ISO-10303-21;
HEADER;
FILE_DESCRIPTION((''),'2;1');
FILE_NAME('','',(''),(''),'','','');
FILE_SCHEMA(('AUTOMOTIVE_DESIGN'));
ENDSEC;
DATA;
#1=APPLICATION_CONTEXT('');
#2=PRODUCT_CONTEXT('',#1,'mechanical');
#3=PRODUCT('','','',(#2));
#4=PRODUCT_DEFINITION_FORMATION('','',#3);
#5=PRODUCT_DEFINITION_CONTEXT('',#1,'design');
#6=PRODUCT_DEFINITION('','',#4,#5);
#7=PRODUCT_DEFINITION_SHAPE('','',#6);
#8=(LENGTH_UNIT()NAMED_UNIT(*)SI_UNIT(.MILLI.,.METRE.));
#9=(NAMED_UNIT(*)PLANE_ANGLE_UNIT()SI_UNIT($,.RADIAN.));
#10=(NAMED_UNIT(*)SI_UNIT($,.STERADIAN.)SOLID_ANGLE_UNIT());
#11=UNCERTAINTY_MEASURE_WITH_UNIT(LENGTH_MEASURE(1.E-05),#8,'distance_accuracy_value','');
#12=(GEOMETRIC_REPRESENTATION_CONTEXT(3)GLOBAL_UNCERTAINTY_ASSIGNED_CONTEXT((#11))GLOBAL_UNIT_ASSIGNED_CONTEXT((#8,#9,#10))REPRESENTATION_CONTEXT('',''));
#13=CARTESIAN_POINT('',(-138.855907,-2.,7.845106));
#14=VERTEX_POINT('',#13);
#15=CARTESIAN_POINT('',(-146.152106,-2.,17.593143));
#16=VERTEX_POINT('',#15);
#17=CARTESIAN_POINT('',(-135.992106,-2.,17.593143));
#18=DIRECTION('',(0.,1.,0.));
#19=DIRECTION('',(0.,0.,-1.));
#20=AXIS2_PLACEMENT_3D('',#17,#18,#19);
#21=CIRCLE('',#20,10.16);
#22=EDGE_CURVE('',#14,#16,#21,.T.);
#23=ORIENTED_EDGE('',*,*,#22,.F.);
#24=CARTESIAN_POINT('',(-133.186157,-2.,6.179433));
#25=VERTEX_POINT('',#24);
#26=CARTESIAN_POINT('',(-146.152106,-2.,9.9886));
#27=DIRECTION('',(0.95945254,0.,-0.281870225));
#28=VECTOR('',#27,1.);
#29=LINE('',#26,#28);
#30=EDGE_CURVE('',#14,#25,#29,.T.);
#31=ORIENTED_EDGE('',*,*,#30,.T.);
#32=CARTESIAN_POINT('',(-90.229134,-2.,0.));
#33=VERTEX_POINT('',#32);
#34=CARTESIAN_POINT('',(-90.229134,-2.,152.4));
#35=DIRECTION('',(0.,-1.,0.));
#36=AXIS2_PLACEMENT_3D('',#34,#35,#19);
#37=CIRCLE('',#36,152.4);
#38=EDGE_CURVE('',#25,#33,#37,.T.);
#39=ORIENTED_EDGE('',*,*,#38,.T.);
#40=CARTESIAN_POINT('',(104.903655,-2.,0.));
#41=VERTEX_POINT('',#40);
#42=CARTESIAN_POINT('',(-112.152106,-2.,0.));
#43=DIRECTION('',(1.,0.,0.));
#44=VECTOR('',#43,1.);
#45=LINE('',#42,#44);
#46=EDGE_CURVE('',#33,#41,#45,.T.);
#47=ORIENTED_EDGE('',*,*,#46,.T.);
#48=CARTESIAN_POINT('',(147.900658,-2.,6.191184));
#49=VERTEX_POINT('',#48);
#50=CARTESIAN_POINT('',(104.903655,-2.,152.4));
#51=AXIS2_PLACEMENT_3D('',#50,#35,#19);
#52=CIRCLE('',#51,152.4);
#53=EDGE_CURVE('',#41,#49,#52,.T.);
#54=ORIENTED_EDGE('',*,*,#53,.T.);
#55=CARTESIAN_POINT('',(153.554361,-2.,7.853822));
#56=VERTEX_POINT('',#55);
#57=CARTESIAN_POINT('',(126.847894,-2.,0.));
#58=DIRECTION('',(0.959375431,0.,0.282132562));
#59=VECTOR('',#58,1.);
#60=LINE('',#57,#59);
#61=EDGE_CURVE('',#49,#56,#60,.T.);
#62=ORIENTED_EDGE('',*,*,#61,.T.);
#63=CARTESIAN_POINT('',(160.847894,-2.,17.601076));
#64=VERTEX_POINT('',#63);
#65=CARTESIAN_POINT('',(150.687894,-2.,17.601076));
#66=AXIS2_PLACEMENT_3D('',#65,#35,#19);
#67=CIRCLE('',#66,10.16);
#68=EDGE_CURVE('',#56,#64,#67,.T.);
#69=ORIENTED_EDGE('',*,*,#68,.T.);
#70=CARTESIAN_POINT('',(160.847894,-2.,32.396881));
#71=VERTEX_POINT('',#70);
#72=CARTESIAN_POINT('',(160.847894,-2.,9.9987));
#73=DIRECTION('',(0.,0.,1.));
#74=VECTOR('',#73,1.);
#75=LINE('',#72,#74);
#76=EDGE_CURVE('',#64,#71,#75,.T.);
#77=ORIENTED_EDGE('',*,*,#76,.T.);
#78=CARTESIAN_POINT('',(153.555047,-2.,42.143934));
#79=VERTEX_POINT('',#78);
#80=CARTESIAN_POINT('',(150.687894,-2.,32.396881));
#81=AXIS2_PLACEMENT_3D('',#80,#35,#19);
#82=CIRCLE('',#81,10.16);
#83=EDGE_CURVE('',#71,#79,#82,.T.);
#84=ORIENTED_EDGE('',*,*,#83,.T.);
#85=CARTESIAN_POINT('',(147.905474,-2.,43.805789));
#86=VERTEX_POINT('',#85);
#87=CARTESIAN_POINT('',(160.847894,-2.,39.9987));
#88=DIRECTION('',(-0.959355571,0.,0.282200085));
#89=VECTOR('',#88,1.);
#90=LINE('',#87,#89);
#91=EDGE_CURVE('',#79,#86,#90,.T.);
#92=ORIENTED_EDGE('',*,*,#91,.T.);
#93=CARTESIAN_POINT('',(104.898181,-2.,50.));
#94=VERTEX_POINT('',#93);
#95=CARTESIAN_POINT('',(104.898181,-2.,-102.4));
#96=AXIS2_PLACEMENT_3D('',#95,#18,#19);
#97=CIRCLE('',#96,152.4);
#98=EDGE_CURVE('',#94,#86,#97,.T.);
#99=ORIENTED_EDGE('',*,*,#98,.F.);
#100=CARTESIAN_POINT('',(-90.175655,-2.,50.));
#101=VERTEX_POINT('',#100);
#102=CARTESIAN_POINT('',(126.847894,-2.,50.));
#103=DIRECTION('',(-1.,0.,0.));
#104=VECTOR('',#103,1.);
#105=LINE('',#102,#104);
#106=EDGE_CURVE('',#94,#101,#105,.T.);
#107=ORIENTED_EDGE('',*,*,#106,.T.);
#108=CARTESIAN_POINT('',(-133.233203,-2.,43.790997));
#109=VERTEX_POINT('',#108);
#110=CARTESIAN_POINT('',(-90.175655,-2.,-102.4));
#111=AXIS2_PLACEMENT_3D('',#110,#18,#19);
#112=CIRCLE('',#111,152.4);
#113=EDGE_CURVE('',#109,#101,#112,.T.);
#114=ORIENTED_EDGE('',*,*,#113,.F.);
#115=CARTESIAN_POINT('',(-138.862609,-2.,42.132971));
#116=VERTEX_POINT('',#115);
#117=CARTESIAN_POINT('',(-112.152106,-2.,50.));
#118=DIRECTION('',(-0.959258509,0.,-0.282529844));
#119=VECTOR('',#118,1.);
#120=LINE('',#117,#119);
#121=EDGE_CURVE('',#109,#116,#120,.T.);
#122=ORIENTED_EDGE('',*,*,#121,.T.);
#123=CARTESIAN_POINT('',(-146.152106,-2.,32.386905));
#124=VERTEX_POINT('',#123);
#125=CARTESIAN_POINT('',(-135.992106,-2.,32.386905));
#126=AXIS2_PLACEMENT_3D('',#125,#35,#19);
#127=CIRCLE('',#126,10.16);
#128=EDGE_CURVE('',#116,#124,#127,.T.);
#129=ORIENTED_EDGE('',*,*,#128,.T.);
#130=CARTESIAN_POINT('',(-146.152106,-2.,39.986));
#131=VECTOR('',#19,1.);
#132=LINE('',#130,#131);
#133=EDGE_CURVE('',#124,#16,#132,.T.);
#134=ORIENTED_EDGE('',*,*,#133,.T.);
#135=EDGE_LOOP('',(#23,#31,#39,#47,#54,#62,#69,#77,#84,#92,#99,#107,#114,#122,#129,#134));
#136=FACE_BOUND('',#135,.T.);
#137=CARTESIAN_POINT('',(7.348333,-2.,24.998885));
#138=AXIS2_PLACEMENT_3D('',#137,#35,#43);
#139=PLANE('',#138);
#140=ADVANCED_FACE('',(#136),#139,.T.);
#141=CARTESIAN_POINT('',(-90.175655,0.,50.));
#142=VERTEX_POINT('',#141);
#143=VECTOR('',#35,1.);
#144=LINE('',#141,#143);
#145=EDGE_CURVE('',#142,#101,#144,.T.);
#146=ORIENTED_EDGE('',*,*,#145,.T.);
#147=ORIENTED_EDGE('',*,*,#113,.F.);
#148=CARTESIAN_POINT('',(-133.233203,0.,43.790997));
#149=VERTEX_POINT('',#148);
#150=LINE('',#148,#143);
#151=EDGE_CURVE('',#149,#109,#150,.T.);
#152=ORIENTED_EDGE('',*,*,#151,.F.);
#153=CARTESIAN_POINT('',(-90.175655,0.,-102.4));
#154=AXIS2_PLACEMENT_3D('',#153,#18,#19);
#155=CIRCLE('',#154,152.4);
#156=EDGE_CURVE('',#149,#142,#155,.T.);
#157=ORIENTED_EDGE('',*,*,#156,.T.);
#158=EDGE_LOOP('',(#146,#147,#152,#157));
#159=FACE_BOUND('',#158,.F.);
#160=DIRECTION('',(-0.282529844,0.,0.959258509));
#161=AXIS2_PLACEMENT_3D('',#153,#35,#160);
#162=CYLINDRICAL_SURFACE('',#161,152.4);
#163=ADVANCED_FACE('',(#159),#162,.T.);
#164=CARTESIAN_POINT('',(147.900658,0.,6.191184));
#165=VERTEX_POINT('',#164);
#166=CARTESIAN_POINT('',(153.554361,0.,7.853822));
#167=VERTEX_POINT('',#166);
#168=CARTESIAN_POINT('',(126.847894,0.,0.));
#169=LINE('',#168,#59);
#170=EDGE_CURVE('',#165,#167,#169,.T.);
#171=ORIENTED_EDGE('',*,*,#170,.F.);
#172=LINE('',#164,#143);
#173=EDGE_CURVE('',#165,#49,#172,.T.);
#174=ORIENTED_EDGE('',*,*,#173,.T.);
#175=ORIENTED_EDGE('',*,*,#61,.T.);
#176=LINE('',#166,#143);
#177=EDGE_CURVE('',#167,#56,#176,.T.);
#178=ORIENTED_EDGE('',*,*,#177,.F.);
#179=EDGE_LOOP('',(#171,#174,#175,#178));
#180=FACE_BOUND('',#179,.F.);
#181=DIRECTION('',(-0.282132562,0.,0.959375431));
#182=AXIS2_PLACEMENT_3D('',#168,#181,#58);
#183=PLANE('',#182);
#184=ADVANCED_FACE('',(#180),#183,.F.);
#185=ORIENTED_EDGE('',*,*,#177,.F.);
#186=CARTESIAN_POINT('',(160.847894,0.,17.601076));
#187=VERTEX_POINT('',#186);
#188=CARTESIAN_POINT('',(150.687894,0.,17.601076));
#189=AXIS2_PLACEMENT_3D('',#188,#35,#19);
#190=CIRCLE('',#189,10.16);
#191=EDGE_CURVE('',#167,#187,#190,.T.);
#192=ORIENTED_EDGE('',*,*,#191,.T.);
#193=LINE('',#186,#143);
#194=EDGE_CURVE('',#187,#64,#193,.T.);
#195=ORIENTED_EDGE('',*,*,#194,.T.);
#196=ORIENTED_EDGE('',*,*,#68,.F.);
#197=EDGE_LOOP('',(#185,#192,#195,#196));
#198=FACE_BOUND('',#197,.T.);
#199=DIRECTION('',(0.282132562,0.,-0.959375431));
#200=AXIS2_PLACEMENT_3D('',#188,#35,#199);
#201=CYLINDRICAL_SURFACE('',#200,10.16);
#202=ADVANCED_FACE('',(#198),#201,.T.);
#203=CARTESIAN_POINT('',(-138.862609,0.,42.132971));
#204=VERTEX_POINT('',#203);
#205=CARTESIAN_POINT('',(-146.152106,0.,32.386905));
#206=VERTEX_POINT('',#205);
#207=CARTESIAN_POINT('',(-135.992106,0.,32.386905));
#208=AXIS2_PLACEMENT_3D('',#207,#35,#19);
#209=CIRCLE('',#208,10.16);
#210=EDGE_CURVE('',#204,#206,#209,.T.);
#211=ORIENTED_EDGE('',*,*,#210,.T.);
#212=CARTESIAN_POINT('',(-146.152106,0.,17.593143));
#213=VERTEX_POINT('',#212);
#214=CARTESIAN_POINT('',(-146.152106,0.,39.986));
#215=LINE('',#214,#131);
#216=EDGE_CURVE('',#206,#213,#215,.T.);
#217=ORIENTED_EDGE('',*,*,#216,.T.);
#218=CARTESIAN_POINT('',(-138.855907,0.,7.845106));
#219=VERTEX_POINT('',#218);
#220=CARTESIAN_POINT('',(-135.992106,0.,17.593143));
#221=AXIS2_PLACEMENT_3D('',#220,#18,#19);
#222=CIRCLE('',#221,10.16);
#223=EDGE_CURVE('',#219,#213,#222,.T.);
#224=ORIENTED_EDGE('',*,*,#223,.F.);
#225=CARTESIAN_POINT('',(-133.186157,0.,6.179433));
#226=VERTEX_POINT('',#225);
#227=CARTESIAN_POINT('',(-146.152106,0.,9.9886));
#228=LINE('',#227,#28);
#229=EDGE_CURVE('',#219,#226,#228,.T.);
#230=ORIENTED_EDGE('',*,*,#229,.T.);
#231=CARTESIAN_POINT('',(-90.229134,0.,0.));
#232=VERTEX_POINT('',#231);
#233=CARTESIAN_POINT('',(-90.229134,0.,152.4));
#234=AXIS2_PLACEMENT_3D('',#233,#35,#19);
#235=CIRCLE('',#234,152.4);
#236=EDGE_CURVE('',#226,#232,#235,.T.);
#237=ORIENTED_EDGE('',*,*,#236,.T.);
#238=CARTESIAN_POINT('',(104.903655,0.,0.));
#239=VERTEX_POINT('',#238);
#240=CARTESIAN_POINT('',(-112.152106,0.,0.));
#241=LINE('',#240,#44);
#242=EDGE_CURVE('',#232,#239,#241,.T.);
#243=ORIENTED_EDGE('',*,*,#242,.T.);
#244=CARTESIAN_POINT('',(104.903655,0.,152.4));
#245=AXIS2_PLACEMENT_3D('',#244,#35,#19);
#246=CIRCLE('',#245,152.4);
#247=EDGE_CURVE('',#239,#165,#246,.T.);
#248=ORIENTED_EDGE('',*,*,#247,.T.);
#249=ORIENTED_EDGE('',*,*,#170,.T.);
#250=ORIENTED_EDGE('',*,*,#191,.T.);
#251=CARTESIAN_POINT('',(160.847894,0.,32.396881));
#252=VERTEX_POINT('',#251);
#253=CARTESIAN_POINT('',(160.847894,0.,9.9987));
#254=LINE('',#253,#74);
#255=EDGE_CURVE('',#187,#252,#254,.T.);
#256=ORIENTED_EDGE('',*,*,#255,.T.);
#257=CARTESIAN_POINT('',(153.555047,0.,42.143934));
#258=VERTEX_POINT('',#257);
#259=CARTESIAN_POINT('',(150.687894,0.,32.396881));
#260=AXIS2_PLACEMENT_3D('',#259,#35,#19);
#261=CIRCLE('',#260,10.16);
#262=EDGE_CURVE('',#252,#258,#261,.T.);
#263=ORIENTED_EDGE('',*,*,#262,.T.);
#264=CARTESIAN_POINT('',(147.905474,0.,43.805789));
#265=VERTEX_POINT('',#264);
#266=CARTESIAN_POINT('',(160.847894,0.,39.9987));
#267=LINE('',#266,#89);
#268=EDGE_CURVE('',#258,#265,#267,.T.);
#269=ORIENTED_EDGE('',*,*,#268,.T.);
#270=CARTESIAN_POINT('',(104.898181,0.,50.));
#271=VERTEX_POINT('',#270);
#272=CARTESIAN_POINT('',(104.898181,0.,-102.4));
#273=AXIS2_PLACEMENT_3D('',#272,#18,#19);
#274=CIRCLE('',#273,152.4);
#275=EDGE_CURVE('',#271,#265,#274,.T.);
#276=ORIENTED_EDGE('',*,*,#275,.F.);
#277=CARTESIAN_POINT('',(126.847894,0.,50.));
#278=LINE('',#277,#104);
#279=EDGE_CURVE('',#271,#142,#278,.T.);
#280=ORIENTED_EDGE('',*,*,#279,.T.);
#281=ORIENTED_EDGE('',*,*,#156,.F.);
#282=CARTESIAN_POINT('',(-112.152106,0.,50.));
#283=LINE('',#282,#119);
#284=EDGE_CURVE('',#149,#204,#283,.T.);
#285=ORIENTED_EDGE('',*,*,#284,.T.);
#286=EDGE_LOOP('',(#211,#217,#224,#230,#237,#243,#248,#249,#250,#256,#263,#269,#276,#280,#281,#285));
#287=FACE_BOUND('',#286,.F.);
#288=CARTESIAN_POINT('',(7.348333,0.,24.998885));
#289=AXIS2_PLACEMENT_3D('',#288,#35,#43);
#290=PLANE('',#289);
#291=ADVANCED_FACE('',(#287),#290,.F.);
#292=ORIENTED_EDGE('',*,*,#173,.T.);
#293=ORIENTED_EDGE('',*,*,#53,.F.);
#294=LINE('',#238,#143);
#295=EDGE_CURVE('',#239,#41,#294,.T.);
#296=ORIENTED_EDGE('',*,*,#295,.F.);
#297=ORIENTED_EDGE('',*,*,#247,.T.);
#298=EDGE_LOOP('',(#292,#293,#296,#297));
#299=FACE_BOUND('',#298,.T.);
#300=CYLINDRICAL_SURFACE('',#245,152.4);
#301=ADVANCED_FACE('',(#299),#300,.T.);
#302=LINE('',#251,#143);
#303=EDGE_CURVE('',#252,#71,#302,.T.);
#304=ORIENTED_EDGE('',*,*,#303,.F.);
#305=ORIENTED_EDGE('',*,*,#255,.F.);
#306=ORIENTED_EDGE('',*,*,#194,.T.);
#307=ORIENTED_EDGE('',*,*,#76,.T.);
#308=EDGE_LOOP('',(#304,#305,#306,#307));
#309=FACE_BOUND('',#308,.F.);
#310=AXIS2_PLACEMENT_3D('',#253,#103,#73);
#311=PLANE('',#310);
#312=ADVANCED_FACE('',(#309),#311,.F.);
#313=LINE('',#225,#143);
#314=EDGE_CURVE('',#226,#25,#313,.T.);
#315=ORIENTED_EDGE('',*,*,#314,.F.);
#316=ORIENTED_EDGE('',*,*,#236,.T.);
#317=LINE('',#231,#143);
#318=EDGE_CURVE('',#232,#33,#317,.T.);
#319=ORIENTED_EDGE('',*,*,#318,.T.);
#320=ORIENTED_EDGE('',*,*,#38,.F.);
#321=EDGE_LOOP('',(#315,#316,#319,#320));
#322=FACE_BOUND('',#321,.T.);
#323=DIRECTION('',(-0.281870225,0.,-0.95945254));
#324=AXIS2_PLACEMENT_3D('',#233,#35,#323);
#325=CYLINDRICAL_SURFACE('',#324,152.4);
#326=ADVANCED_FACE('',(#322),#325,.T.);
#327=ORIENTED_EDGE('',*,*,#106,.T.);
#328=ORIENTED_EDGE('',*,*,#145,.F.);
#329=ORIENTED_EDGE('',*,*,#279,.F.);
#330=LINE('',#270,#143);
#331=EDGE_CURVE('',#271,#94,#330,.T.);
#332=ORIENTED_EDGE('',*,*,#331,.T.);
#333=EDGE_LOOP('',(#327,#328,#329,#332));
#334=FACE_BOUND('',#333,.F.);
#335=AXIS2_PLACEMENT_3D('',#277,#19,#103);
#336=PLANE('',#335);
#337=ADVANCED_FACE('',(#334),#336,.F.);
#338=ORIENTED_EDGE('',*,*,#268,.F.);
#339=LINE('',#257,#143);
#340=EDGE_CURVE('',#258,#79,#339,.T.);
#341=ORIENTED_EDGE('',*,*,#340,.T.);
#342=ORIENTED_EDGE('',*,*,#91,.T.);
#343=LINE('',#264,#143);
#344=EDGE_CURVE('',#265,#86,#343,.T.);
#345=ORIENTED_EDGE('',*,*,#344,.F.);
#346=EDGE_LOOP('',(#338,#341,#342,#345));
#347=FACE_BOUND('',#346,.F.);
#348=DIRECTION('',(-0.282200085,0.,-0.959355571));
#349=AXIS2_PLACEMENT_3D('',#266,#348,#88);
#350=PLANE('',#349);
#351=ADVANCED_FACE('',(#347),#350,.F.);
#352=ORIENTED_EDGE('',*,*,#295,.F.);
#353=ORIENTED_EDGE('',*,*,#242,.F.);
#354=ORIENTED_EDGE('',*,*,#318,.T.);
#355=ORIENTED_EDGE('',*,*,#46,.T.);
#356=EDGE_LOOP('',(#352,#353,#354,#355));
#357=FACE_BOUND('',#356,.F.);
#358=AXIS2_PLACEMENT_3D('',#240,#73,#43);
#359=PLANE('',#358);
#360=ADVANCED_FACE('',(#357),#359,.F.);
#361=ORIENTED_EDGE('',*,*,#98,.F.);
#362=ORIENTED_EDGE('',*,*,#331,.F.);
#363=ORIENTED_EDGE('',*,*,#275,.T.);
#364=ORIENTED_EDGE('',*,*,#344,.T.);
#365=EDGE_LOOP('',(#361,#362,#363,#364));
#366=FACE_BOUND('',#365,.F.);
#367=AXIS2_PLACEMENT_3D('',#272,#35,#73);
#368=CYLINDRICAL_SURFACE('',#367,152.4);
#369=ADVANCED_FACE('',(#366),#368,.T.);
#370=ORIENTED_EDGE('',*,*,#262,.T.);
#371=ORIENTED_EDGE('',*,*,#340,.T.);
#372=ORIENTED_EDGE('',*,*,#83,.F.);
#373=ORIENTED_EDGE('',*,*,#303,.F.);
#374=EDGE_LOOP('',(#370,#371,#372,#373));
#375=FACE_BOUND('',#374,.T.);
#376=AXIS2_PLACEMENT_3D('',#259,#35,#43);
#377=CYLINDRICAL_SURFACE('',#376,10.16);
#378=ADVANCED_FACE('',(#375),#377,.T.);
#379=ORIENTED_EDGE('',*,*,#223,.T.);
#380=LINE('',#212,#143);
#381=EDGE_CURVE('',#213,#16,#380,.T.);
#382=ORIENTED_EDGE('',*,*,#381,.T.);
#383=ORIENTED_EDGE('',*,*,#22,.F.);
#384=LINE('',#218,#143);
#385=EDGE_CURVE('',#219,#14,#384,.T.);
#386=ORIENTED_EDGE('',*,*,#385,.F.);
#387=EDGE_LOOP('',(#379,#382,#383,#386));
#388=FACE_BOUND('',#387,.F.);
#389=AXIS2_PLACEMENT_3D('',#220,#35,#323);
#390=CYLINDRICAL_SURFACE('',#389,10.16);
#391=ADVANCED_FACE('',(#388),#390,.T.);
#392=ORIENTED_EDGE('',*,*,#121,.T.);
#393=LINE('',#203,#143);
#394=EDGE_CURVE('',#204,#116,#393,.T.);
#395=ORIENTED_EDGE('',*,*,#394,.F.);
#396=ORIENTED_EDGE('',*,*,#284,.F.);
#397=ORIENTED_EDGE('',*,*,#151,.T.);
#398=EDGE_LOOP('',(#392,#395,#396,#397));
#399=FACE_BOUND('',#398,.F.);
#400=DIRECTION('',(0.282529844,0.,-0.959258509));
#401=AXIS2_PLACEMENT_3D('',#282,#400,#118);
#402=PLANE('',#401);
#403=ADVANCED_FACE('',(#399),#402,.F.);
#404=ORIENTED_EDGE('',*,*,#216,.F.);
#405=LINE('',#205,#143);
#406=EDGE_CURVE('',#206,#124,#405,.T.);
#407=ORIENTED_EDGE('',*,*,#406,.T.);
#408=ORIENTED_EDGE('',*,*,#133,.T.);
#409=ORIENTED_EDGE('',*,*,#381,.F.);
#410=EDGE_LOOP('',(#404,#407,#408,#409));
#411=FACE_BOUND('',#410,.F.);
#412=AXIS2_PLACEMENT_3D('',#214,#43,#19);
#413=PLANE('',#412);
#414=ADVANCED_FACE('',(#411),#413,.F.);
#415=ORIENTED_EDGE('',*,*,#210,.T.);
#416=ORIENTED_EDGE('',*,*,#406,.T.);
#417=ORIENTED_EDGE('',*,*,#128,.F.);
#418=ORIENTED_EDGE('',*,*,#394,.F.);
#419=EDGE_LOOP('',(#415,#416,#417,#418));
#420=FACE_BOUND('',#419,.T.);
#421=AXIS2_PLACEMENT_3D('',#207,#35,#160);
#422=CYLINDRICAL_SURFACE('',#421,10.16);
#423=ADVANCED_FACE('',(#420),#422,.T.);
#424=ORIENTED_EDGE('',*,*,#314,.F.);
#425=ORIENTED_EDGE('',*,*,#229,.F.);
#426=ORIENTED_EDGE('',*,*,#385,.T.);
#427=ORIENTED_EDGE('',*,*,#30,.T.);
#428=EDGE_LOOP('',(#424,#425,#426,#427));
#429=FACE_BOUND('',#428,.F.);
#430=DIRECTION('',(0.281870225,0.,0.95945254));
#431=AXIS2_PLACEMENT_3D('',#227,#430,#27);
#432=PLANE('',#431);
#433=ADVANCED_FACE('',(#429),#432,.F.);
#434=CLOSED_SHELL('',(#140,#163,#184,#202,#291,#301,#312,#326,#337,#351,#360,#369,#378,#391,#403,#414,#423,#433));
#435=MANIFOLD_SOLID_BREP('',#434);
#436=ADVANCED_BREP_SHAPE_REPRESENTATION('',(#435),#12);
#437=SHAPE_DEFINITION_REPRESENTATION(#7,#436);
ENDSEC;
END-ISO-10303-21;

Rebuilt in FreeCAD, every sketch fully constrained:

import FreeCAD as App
import Part
import Sketcher
Q = App.Units.Quantity


def edges_at(feature, points):
    """Names of the edges that pass closest to the given points."""
    edges = feature.Shape.Edges
    near = lambda p: min(range(len(edges)), key=lambda i: edges[i].distToShape(Part.Vertex(*p))[0])
    return sorted({f"Edge{near(p) + 1}" for p in points})


def add_polygon(sketch, points):
    """Adds a closed chain of lines whose ends are joined by coincident constraints."""
    first, n = sketch.GeometryCount, len(points)
    for a, b in zip(points, points[1:] + points[:1]):
        sketch.addGeometry(Part.LineSegment(App.Vector(*a, 0), App.Vector(*b, 0)), False)
    for i in range(n):
        sketch.addConstraint(Sketcher.Constraint("Coincident", first + i, 2, first + (i + 1) % n, 1))

doc = App.newDocument("Part")
body = doc.addObject("PartDesign::Body", "Body")

# Sketch on XZ plane
sketch1 = body.newObject("Sketcher::SketchObject", "Sketch")
sketch1.AttachmentSupport = (doc.getObject("XZ_Plane"), [""])
sketch1.MapMode = "FlatFace"
add_polygon(sketch1, [(-146.152106, 9.9886), (-112.152106, 0), (126.847894, 0), (160.847894, 9.9987), (160.847894, 39.9987), (126.847894, 50), (-112.152106, 50), (-146.152106, 39.986)])  # lines 0-7
sketch1.addConstraint([
    Sketcher.Constraint("Horizontal", 1),
    Sketcher.Constraint("Vertical", 3),
    Sketcher.Constraint("Horizontal", 5),
    Sketcher.Constraint("Vertical", 7),
    Sketcher.Constraint("PointOnObject", 0, 2, -1),
    Sketcher.Constraint("Vertical", 1, 2, 4, 2),
    Sketcher.Constraint("Vertical", 0, 2, 5, 2),
    Sketcher.Constraint("DistanceX", 1, 1, 1, 2, Q("239 mm")),
    Sketcher.Constraint("DistanceY", 3, 1, 3, 2, Q("30 mm")),
    Sketcher.Constraint("DistanceY", -1, 1, 4, 2, Q("50 mm")),
    Sketcher.Constraint("DistanceX", 1, 2, 2, 2, Q("34 mm")),
    Sketcher.Constraint("DistanceX", 6, 2, 5, 2, Q("34 mm")),
    Sketcher.Constraint("DistanceY", 7, 2, 7, 1, Q("29.9974 mm")),
    Sketcher.Constraint("DistanceY", -1, 1, 6, 2, Q("39.986 mm")),
    Sketcher.Constraint("DistanceY", -1, 1, 2, 2, Q("9.9987 mm")),
    Sketcher.Constraint("DistanceX", 0, 2, -1, 1, Q("112.152106 mm")),
])
pad1 = body.newObject("PartDesign::Pad", "Pad")
pad1.Profile = sketch1
pad1.Length = 2
doc.recompute()

fillet = body.newObject("PartDesign::Fillet", "Fillet")
fillet.Base = (pad1, edges_at(pad1, [
    (-146.152, -1, 39.986),
    (-146.152, -1, 9.989),
    (160.848, -1, 9.999),
    (160.848, -1, 39.999),
]))
fillet.Radius = 10.16
doc.recompute()

fillet2 = body.newObject("PartDesign::Fillet", "Fillet001")
fillet2.Base = (fillet, edges_at(fillet, [
    (126.848, -1, 50),
    (126.848, -1, 0),
    (-112.152, -1, 50),
    (-112.152, -1, 0),
]))
fillet2.Radius = 152.4

doc.recompute()
